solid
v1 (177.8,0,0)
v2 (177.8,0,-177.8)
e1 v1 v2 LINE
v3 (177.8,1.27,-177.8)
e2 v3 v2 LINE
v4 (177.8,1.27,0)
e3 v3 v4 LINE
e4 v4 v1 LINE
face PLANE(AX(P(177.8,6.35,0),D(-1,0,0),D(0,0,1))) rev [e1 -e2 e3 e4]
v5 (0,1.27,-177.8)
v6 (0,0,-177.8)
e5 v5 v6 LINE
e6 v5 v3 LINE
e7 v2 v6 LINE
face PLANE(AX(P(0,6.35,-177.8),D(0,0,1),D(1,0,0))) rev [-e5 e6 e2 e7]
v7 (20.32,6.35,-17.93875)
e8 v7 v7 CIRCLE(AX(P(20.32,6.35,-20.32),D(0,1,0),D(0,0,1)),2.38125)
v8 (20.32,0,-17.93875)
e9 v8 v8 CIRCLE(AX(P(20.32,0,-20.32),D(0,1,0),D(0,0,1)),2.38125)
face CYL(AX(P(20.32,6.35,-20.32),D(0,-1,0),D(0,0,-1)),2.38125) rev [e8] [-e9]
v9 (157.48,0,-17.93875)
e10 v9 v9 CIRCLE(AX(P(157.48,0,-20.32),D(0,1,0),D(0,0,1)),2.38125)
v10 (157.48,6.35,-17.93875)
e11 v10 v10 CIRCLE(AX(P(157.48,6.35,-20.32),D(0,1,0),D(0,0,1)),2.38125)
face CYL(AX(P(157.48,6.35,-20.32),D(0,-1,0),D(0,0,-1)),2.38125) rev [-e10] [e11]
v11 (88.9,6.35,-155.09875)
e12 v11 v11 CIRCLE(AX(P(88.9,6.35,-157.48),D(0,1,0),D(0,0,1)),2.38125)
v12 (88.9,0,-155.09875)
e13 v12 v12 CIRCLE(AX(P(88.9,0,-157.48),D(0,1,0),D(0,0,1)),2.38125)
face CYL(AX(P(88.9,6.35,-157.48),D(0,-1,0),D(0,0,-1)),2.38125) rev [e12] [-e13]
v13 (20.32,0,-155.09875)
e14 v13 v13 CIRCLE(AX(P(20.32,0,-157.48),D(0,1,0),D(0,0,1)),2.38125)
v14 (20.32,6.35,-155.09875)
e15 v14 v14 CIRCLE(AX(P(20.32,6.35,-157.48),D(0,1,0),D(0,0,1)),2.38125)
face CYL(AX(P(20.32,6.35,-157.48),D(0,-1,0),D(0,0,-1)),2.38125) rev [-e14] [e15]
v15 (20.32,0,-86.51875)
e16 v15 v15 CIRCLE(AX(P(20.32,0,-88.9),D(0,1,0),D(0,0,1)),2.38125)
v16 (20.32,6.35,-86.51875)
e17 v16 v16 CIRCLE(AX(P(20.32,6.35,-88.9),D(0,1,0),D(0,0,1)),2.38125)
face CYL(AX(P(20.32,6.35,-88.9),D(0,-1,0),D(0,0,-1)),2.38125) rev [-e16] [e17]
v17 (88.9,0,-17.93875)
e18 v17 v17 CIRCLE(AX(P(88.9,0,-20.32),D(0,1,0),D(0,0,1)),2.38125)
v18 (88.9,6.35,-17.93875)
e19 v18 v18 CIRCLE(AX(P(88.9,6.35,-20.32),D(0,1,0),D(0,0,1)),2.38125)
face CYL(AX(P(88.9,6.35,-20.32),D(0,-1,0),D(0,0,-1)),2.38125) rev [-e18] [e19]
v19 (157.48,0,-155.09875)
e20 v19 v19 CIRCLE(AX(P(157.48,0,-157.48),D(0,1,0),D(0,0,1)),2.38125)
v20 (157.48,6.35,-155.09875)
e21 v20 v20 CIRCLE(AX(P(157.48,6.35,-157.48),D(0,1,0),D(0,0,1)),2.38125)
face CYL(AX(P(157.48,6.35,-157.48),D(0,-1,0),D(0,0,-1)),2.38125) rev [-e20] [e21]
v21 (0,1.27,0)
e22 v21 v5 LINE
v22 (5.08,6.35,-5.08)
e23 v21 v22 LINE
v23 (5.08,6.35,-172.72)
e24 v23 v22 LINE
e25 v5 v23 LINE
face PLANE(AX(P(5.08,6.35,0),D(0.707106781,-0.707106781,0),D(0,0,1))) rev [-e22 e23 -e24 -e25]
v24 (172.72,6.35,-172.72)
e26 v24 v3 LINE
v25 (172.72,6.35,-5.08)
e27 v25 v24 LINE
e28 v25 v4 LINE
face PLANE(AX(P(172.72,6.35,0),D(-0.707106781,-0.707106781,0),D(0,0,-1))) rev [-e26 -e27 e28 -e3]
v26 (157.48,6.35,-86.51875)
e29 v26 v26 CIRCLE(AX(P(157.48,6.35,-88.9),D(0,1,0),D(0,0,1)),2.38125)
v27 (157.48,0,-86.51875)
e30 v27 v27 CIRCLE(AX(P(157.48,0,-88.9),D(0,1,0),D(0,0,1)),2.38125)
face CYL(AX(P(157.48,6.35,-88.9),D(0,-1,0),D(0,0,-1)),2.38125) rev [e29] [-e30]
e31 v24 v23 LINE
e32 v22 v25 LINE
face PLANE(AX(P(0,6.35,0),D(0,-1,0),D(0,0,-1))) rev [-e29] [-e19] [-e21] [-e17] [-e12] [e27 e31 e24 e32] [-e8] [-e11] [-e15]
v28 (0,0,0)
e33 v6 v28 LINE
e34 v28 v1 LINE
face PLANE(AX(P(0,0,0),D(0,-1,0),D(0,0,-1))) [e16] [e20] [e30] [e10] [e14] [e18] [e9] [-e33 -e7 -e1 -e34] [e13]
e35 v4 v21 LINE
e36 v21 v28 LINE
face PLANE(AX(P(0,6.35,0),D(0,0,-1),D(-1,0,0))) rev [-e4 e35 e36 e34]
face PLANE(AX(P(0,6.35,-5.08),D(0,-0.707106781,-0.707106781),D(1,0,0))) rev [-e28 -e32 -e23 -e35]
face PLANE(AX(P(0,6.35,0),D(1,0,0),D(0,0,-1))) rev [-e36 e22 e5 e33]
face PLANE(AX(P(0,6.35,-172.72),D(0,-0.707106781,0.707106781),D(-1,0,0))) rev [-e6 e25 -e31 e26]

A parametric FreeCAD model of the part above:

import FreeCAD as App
import Part
import Sketcher
from FreeCAD import Vector
Q = App.Units.Quantity


def edges_at(feature, points):
    """Names of the edges that pass closest to the given points."""
    edges = feature.Shape.Edges
    near = lambda p: min(range(len(edges)), key=lambda i: edges[i].distToShape(Part.Vertex(*p))[0])
    return sorted({f"Edge{near(p) + 1}" for p in points})

doc = App.newDocument("Part")
body = doc.addObject("PartDesign::Body", "Body")

# Sketch on XZ plane
sketch1 = doc.addObject("Sketcher::SketchObject", "Sketch")
body.addObject(sketch1)
sketch1.AttachmentSupport = (doc.XZ_Plane, [""])
sketch1.MapMode = "FlatFace"
sketch1.addGeometry([
    Part.LineSegment(Vector(0, -177.8, 0), Vector(0, 0, 0)),  # 0
    Part.LineSegment(Vector(0, 0, 0), Vector(177.8, 0, 0)),  # 1
    Part.LineSegment(Vector(177.8, 0, 0), Vector(177.8, -177.8, 0)),  # 2
    Part.LineSegment(Vector(177.8, -177.8, 0), Vector(0, -177.8, 0)),  # 3
    Part.Circle(Vector(20.32, -20.32, 0), Vector(0, 0, 1), 2.38125),  # 4
    Part.Circle(Vector(88.9, -20.32, 0), Vector(0, 0, 1), 2.38125),  # 5
    Part.Circle(Vector(157.48, -20.32, 0), Vector(0, 0, 1), 2.38125),  # 6
    Part.Circle(Vector(20.32, -88.9, 0), Vector(0, 0, 1), 2.38125),  # 7
    Part.Circle(Vector(20.32, -157.48, 0), Vector(0, 0, 1), 2.38125),  # 8
    Part.Circle(Vector(157.48, -88.9, 0), Vector(0, 0, 1), 2.38125),  # 9
    Part.Circle(Vector(88.9, -157.48, 0), Vector(0, 0, 1), 2.38125),  # 10
    Part.Circle(Vector(157.48, -157.48, 0), Vector(0, 0, 1), 2.38125),  # 11
], False)
sketch1.addConstraint([
    Sketcher.Constraint("Coincident", 0, 2, 1, 1),
    Sketcher.Constraint("Coincident", 1, 2, 2, 1),
    Sketcher.Constraint("Coincident", 2, 2, 3, 1),
    Sketcher.Constraint("Coincident", 3, 2, 0, 1),
    Sketcher.Constraint("Vertical", 0),
    Sketcher.Constraint("Horizontal", 1),
    Sketcher.Constraint("Vertical", 2),
    Sketcher.Constraint("Horizontal", 3),
    Sketcher.Constraint("Coincident", 0, 2, -1, 1),
    Sketcher.Constraint("Equal", 4, 5),
    Sketcher.Constraint("Equal", 5, 6),
    Sketcher.Constraint("Equal", 6, 7),
    Sketcher.Constraint("Equal", 7, 8),
    Sketcher.Constraint("Equal", 8, 9),
    Sketcher.Constraint("Equal", 9, 10),
    Sketcher.Constraint("Equal", 10, 11),
    Sketcher.Constraint("Horizontal", 4, 3, 5, 3),
    Sketcher.Constraint("Horizontal", 5, 3, 6, 3),
    Sketcher.Constraint("Horizontal", 7, 3, 9, 3),
    Sketcher.Constraint("Horizontal", 8, 3, 10, 3),
    Sketcher.Constraint("Horizontal", 10, 3, 11, 3),
    Sketcher.Constraint("Vertical", 4, 3, 7, 3),
    Sketcher.Constraint("Vertical", 7, 3, 8, 3),
    Sketcher.Constraint("Vertical", 6, 3, 9, 3),
    Sketcher.Constraint("Vertical", 5, 3, 10, 3),
    Sketcher.Constraint("Vertical", 9, 3, 11, 3),
    Sketcher.Constraint("Equal", 3, 0),
    Sketcher.Constraint("DistanceX", 1, 1, 1, 2, Q("7 in")),
    Sketcher.Constraint("Diameter", 4, Q("0.1875 in")),
    Sketcher.Constraint("DistanceX", -1, 1, 4, 3, Q("0.8 in")),
    Sketcher.Constraint("DistanceY", 4, 3, -1, 1, Q("0.8 in")),
    Sketcher.Constraint("DistanceX", -1, 1, 5, 3, Q("3.5 in")),
    Sketcher.Constraint("DistanceX", -1, 1, 6, 3, Q("6.2 in")),
    Sketcher.Constraint("DistanceY", 7, 3, -1, 1, Q("3.5 in")),
    Sketcher.Constraint("DistanceY", 8, 3, -1, 1, Q("6.2 in")),
])
pad1 = doc.addObject("PartDesign::Pad", "Pad")
body.addObject(pad1)
pad1.Profile = sketch1
pad1.Length = Q("0.25 in")
pad1.Reversed = True
doc.recompute()

chamfer = doc.addObject("PartDesign::Chamfer", "Chamfer")
body.addObject(chamfer)
chamfer.Base = (pad1, edges_at(pad1, [
    (177.8, 6.35, -88.9),
    (88.9, 6.35, -177.8),
    (0, 6.35, -88.9),
    (88.9, 6.35, 0),
]))
chamfer.Size = Q("0.2 in")

doc.recompute()
